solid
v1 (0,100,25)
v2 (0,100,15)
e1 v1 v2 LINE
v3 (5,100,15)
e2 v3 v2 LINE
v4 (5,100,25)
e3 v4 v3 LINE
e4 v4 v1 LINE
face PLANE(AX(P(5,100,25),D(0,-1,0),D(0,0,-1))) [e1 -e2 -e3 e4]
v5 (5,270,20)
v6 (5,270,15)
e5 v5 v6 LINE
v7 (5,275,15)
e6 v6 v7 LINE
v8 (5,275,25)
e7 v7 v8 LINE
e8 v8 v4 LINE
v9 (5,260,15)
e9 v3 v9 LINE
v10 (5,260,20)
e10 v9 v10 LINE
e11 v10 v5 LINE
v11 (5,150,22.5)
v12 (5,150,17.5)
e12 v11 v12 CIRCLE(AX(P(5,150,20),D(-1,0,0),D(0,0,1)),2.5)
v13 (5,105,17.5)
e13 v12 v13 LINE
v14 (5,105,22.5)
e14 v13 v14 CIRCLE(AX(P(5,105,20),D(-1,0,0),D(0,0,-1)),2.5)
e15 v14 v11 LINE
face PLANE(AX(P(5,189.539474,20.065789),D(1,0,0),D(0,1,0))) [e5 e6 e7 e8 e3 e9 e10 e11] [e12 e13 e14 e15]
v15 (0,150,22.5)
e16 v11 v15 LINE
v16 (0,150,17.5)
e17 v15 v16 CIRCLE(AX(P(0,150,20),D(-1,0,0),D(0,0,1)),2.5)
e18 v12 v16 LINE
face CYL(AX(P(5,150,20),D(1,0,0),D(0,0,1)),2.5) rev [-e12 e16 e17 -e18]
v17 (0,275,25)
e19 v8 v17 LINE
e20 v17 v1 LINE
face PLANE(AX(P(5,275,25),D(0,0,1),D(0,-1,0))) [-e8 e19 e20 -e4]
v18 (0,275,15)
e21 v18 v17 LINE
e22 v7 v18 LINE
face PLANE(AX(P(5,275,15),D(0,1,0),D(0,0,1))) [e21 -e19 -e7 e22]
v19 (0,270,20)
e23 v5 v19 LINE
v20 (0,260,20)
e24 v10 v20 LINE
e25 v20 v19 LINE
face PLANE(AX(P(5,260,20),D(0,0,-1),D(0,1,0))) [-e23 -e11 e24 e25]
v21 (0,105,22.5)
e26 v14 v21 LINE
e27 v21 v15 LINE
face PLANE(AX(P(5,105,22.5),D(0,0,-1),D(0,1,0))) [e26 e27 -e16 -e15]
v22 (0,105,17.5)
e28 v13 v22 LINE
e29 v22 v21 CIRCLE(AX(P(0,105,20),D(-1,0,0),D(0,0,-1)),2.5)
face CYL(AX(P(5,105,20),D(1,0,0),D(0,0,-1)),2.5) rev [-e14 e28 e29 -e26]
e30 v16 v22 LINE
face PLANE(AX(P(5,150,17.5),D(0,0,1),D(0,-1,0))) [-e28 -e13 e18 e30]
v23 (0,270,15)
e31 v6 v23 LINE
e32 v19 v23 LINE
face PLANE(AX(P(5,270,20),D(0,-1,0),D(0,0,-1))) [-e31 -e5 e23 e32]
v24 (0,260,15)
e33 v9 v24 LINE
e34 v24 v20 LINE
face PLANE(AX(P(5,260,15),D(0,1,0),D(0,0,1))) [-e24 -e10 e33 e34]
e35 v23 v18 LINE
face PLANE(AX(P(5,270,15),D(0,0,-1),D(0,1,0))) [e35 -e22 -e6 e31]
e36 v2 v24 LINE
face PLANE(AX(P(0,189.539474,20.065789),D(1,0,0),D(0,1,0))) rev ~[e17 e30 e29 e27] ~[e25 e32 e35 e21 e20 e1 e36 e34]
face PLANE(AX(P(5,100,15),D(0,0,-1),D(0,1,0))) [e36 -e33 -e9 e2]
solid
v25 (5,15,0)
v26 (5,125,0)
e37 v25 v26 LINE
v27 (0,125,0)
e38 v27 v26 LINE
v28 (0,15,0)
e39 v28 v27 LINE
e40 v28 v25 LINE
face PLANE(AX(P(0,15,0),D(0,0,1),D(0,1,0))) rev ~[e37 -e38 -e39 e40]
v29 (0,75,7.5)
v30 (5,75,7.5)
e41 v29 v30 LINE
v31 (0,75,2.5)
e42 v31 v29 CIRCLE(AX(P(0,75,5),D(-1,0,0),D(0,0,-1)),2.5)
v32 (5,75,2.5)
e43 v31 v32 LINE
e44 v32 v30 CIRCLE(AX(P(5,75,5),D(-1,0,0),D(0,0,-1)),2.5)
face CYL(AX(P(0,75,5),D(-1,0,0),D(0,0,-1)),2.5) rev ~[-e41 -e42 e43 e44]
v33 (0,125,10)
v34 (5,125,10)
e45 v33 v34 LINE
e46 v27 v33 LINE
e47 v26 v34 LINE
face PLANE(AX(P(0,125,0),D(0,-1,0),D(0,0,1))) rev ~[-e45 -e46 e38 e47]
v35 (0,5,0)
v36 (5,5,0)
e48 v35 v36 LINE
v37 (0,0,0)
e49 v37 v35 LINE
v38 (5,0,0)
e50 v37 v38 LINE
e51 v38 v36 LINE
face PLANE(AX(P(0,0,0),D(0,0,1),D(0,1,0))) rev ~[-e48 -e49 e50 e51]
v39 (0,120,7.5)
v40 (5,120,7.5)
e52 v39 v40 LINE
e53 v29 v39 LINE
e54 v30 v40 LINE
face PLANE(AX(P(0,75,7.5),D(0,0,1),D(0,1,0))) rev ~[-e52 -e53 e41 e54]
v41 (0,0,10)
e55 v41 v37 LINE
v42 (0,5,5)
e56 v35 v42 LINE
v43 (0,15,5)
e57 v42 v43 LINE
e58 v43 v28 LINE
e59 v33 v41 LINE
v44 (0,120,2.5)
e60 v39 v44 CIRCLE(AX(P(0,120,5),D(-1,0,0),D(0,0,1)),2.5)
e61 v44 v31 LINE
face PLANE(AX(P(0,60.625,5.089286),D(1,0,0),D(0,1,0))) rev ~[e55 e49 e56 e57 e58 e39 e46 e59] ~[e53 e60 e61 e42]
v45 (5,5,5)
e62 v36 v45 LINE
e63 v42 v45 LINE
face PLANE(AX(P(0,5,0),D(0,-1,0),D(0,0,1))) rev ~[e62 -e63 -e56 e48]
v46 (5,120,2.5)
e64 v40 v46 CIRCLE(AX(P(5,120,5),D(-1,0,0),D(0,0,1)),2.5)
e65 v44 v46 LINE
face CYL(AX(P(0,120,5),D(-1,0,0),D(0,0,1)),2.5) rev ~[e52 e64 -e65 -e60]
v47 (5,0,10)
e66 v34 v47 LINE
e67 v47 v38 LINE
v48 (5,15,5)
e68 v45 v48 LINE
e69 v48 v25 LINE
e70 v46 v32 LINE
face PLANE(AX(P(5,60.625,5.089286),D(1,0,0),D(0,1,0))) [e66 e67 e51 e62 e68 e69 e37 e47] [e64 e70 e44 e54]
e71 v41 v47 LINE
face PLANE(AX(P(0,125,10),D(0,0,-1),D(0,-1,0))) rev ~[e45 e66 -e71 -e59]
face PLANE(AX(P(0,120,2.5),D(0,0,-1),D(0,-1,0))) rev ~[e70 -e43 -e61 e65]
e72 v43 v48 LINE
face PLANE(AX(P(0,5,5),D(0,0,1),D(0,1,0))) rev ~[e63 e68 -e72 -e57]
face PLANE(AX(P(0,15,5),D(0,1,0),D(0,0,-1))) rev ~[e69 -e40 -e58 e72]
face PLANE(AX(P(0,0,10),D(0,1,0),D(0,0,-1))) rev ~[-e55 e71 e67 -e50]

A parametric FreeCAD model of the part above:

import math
import FreeCAD as App
import Part
import Sketcher


def add_polygon(sketch, points):
    """Adds a closed chain of lines whose ends are joined by coincident constraints."""
    first, n = sketch.GeometryCount, len(points)
    for a, b in zip(points, points[1:] + points[:1]):
        sketch.addGeometry(Part.LineSegment(App.Vector(*a, 0), App.Vector(*b, 0)), False)
    for i in range(n):
        sketch.addConstraint(Sketcher.Constraint("Coincident", first + i, 2, first + (i + 1) % n, 1))

doc = App.newDocument("Part")
body = doc.addObject("PartDesign::Body", "Body")

sketch1 = body.newObject("Sketcher::SketchObject", "Sketch")
sketch1.AttachmentSupport = (doc.getObject("YZ_Plane"), [""])
sketch1.MapMode = "FlatFace"
add_polygon(sketch1, [(15, 0), (125, 0), (125, 10), (0, 10), (0, 0), (5, 0), (5, 5), (15, 5)])
sketch1.addGeometry(Part.LineSegment(App.Vector(75, 7.5, 0), App.Vector(120, 7.5, 0)), False)
sketch1.addGeometry(Part.ArcOfCircle(Part.Circle(App.Vector(120, 5, 0), App.Vector(0, 0, 1), 2.5), math.radians(-90), math.radians(90)), False)
sketch1.addGeometry(Part.LineSegment(App.Vector(120, 2.5, 0), App.Vector(75, 2.5, 0)), False)
sketch1.addGeometry(Part.ArcOfCircle(Part.Circle(App.Vector(75, 5, 0), App.Vector(0, 0, 1), 2.5), math.radians(90), math.radians(270)), False)
sketch1.addConstraint(Sketcher.Constraint("Tangent", 8, 2, 9, 2))
sketch1.addConstraint(Sketcher.Constraint("Tangent", 9, 1, 10, 1))
sketch1.addConstraint(Sketcher.Constraint("Tangent", 10, 2, 11, 2))
sketch1.addConstraint(Sketcher.Constraint("Tangent", 11, 1, 8, 1))
sketch1.addConstraint(Sketcher.Constraint("Horizontal", 0))
sketch1.addConstraint(Sketcher.Constraint("Vertical", 1))
sketch1.addConstraint(Sketcher.Constraint("Horizontal", 2))
sketch1.addConstraint(Sketcher.Constraint("Vertical", 3))
sketch1.addConstraint(Sketcher.Constraint("Horizontal", 4))
sketch1.addConstraint(Sketcher.Constraint("Vertical", 5))
sketch1.addConstraint(Sketcher.Constraint("Horizontal", 6))
sketch1.addConstraint(Sketcher.Constraint("Vertical", 7))
sketch1.addConstraint(Sketcher.Constraint("Horizontal", 8))
sketch1.addConstraint(Sketcher.Constraint("Horizontal", 10))
sketch1.addConstraint(Sketcher.Constraint("Coincident", 3, 2, -1, 1))
sketch1.addConstraint(Sketcher.Constraint("PointOnObject", 0, 2, -1))
sketch1.addConstraint(Sketcher.Constraint("Horizontal", 11, 3, 5, 2))
sketch1.addConstraint(Sketcher.Constraint("Equal", 6, 1))
sketch1.addConstraint(Sketcher.Constraint("Equal", 4, 5))
sketch1.addConstraint(Sketcher.Constraint("Radius", 9, 2.5))
sketch1.addConstraint(Sketcher.Constraint("DistanceX", 0, 1, 0, 2, 110.0))
sketch1.addConstraint(Sketcher.Constraint("DistanceX", 2, 2, 2, 1, 125.0))
sketch1.addConstraint(Sketcher.Constraint("DistanceX", 4, 1, 4, 2, 5.0))
sketch1.addConstraint(Sketcher.Constraint("DistanceX", 8, 1, 8, 2, 45.0))
sketch1.addConstraint(Sketcher.Constraint("DistanceX", -1, 1, 9, 3, 120.0))
pad1 = body.newObject("PartDesign::Pad", "Pad")
pad1.Profile = sketch1
pad1.Length = 5
body2 = doc.addObject("PartDesign::Body", "Body001")

sketch2 = body2.newObject("Sketcher::SketchObject", "Sketch001")
sketch2.AttachmentSupport = (doc.getObject("YZ_Plane001"), [""])
sketch2.MapMode = "FlatFace"
sketch2.AttachmentOffset = App.Placement(App.Vector(0, 0, 5), App.Rotation())
add_polygon(sketch2, [(100, 15), (260, 15), (260, 20), (270, 20), (270, 15), (275, 15), (275, 25), (100, 25)])
sketch2.addGeometry(Part.LineSegment(App.Vector(150, 17.5, 0), App.Vector(105, 17.5, 0)), False)
sketch2.addGeometry(Part.ArcOfCircle(Part.Circle(App.Vector(105, 20, 0), App.Vector(0, 0, 1), 2.5), math.radians(90), math.radians(270)), False)
sketch2.addGeometry(Part.LineSegment(App.Vector(105, 22.5, 0), App.Vector(150, 22.5, 0)), False)
sketch2.addGeometry(Part.ArcOfCircle(Part.Circle(App.Vector(150, 20, 0), App.Vector(0, 0, 1), 2.5), math.radians(-90), math.radians(90)), False)
sketch2.addConstraint(Sketcher.Constraint("Tangent", 8, 2, 9, 2))
sketch2.addConstraint(Sketcher.Constraint("Tangent", 9, 1, 10, 1))
sketch2.addConstraint(Sketcher.Constraint("Tangent", 10, 2, 11, 2))
sketch2.addConstraint(Sketcher.Constraint("Tangent", 11, 1, 8, 1))
sketch2.addConstraint(Sketcher.Constraint("Horizontal", 0))
sketch2.addConstraint(Sketcher.Constraint("Vertical", 1))
sketch2.addConstraint(Sketcher.Constraint("Horizontal", 2))
sketch2.addConstraint(Sketcher.Constraint("Vertical", 3))
sketch2.addConstraint(Sketcher.Constraint("Horizontal", 4))
sketch2.addConstraint(Sketcher.Constraint("Vertical", 5))
sketch2.addConstraint(Sketcher.Constraint("Horizontal", 6))
sketch2.addConstraint(Sketcher.Constraint("Vertical", 7))
sketch2.addConstraint(Sketcher.Constraint("Horizontal", 8))
sketch2.addConstraint(Sketcher.Constraint("Horizontal", 10))
sketch2.addConstraint(Sketcher.Constraint("Horizontal", 11, 3, 1, 2))
sketch2.addConstraint(Sketcher.Constraint("Horizontal", 0, 2, 3, 2))
sketch2.addConstraint(Sketcher.Constraint("Equal", 4, 1))
sketch2.addConstraint(Sketcher.Constraint("Equal", 2, 5))
sketch2.addConstraint(Sketcher.Constraint("Radius", 9, 2.5))
sketch2.addConstraint(Sketcher.Constraint("DistanceX", 0, 1, 0, 2, 160.0))
sketch2.addConstraint(Sketcher.Constraint("DistanceX", 2, 1, 2, 2, 10.0))
sketch2.addConstraint(Sketcher.Constraint("DistanceX", 4, 1, 4, 2, 5.0))
sketch2.addConstraint(Sketcher.Constraint("DistanceX", 8, 2, 8, 1, 45.0))
sketch2.addConstraint(Sketcher.Constraint("DistanceX", -1, 1, 9, 3, 105.0))
sketch2.addConstraint(Sketcher.Constraint("DistanceY", -1, 1, 9, 3, 20.0))
sketch2.addConstraint(Sketcher.Constraint("DistanceX", -1, 1, 0, 2, 260.0))
pad2 = body2.newObject("PartDesign::Pad", "Pad001")
pad2.Profile = sketch2
pad2.Length = 5
pad2.Reversed = True

doc.recompute()
